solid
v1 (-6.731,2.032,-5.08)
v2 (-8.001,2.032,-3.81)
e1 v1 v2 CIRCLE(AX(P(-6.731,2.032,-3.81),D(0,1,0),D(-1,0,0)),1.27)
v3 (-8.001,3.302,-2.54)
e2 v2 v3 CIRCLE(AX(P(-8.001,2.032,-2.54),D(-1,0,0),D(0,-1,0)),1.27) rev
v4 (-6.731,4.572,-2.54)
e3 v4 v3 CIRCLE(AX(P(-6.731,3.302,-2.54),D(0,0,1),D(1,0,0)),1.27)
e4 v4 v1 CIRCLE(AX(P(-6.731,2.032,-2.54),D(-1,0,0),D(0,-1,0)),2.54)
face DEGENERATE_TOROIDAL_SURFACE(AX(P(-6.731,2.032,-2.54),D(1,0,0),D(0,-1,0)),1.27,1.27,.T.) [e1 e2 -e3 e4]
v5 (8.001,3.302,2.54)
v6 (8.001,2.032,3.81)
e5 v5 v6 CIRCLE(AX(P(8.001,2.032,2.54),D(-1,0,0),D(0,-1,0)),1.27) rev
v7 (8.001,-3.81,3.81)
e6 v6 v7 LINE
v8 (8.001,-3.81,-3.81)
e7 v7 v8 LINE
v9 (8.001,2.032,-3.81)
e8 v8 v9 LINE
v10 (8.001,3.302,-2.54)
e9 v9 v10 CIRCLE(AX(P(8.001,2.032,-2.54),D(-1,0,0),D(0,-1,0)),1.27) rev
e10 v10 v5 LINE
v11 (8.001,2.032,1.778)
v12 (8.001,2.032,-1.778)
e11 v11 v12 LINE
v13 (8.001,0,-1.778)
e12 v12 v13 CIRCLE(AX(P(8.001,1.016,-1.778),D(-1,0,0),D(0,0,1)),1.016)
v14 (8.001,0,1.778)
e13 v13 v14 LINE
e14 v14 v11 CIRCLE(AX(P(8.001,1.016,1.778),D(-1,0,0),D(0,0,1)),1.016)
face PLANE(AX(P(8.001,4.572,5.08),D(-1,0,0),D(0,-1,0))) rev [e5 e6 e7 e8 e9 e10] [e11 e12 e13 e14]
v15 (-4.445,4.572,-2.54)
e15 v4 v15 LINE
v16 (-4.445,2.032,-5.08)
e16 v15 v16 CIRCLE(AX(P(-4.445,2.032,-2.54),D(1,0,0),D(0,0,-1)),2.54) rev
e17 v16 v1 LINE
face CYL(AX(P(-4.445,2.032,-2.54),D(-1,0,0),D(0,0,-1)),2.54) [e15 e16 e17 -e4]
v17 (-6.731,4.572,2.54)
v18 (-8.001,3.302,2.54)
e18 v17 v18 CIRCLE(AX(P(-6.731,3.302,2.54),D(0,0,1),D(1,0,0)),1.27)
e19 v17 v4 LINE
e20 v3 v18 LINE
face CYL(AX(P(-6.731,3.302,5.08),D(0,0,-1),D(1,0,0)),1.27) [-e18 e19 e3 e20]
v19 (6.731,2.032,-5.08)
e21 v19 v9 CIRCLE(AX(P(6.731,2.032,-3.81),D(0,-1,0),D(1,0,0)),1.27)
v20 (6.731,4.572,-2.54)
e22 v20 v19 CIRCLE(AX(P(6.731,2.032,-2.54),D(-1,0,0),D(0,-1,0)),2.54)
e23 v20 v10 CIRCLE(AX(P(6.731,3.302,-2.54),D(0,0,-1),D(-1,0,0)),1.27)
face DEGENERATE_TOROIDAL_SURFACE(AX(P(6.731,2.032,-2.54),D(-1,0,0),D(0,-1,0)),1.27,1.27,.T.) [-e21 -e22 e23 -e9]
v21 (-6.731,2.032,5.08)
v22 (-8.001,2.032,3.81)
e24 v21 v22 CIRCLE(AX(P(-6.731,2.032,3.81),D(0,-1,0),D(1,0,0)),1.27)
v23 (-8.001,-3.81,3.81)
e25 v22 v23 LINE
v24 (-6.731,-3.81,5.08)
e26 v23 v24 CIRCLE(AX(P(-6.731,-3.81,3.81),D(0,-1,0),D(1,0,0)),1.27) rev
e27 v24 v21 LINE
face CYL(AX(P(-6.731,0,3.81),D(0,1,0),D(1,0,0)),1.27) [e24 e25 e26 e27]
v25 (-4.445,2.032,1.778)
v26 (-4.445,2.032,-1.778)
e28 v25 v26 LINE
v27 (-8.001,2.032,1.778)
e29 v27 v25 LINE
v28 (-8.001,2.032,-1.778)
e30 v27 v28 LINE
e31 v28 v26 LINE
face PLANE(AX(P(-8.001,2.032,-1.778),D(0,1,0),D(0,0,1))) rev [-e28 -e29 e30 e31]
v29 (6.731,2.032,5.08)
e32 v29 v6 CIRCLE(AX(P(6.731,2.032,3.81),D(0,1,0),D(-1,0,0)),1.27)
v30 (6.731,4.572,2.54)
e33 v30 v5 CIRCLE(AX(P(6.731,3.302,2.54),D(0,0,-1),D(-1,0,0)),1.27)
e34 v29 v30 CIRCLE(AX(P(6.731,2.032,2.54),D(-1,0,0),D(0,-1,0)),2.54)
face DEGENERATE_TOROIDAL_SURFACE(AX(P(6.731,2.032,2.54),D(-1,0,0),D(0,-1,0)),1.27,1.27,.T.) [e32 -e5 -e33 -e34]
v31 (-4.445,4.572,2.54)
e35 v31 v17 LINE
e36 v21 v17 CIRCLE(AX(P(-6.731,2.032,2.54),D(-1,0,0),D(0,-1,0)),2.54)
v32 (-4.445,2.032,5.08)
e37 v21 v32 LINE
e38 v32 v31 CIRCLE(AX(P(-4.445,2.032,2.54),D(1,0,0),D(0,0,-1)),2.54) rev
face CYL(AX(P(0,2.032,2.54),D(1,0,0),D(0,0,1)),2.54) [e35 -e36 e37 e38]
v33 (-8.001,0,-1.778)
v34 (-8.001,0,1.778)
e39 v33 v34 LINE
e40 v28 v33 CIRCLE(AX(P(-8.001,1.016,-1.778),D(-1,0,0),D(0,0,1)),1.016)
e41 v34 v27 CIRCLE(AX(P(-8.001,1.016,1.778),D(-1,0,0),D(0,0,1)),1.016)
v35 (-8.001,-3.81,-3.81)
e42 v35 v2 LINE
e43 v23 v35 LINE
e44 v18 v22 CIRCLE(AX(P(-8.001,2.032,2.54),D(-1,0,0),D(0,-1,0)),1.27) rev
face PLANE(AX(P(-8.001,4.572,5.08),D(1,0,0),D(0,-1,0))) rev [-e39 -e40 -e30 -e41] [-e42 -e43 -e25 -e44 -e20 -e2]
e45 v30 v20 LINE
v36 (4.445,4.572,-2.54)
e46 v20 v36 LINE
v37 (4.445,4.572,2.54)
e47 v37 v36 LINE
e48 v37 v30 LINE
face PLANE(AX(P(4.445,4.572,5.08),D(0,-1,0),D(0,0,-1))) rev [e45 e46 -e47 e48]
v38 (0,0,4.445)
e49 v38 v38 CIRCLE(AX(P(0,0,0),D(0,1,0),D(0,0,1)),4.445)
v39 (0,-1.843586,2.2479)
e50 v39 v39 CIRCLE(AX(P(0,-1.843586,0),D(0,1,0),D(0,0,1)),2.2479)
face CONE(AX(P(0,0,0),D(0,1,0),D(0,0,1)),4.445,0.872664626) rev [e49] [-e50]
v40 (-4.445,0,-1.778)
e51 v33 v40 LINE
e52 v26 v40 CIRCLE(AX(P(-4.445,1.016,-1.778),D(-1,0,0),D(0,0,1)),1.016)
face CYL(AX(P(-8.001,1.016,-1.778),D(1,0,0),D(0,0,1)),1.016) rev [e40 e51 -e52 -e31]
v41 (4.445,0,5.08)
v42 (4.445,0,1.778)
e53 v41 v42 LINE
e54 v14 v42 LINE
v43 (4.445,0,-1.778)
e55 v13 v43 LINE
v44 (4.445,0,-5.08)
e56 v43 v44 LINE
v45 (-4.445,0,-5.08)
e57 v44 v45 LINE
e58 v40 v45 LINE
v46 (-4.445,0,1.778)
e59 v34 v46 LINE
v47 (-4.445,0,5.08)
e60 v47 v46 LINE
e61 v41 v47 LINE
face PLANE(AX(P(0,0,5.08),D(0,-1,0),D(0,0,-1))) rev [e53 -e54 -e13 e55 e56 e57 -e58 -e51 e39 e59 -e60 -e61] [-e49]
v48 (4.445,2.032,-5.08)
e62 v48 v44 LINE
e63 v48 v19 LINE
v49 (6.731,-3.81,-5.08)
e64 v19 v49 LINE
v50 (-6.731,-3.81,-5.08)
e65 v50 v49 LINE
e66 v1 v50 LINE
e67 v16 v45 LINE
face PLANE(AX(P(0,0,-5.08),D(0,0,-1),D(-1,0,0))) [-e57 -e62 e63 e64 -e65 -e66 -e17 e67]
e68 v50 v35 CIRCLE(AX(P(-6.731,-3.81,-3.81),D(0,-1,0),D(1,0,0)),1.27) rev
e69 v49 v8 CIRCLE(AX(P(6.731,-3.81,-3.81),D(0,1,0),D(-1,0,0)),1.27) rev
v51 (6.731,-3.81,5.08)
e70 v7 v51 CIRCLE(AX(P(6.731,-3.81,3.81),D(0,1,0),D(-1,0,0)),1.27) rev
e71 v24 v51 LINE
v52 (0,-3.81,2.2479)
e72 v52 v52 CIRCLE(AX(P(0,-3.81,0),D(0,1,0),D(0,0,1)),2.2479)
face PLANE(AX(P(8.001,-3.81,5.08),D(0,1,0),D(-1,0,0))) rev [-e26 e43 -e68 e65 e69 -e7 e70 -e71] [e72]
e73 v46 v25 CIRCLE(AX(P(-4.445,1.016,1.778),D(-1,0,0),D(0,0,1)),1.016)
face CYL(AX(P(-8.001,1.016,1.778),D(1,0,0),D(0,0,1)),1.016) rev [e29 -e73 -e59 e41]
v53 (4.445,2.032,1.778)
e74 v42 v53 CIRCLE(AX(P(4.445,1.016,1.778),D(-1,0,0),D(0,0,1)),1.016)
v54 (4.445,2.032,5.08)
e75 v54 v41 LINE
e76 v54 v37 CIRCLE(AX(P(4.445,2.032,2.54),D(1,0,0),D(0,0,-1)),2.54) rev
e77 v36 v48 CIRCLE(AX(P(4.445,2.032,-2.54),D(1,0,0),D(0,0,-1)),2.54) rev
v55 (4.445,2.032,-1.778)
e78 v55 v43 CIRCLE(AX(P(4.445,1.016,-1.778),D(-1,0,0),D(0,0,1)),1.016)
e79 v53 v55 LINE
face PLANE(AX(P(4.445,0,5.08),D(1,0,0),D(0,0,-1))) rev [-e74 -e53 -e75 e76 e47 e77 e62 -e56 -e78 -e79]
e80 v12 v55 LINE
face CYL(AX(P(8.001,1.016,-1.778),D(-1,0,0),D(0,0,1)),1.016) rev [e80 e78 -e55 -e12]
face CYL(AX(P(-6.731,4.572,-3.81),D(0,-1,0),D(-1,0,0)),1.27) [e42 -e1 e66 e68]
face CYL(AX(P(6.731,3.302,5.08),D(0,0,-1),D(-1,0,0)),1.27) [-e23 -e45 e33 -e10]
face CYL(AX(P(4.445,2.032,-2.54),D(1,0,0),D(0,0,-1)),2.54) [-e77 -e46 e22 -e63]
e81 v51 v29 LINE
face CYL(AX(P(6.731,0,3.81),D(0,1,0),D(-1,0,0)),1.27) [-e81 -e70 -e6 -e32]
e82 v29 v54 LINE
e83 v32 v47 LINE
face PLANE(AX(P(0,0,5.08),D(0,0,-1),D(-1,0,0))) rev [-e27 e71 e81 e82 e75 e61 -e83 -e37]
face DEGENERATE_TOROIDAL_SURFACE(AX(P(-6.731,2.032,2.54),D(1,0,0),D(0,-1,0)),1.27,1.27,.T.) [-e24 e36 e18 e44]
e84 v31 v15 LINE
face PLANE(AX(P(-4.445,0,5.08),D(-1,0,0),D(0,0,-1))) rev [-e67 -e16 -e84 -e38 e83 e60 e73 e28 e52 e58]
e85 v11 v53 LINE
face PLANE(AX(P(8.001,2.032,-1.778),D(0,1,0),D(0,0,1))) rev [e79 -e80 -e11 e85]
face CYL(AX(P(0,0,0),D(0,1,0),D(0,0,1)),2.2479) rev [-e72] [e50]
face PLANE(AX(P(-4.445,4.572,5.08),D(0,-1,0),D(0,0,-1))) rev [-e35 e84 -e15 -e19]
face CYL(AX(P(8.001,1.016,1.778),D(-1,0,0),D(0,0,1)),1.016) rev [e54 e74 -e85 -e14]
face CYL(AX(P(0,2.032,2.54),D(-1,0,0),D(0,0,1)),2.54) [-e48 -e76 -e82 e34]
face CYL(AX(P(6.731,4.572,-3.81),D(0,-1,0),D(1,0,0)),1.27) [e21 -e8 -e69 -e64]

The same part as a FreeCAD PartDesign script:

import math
import FreeCAD as App
import Part
import Sketcher

V = App.Vector
Q = App.Units.Quantity


def edges_at(feature, points):
    """Names of the edges that pass closest to the given points."""
    edges = feature.Shape.Edges
    near = lambda p: min(range(len(edges)), key=lambda i: edges[i].distToShape(Part.Vertex(*p))[0])
    return sorted({f"Edge{near(p) + 1}" for p in points})

doc = App.newDocument("Part")
params = doc.addObject("Spreadsheet::Sheet", "Params")
for row, (alias, value) in enumerate([
    ("sketch1_width", "0.14 in"),
    ("sketch1_height", "0.15 in"),
    ("sketch1_height2", "0.33 in"),
    ("sketch1_width2", "0.175 in"),
    ("pad1_length", "0.4 in"),
    ("sketch2_diameter", "0.177 in"),
    ("hole_diameter", "0.177 in"),
    ("hole_csink_diameter", "0.35 in"),
    ("sketch3_radius", "0.04 in"),
    ("sketch3_height", "0.14 in"),
    ("fillet_radius", "0.1 in"),
    ("fillet2_radius", "0.05 in"),
], start=1):
    params.set(f"A{row}", alias)
    params.set(f"B{row}", "=" + value)
    params.setAlias(f"B{row}", alias)

body = doc.addObject("PartDesign::Body", "Body")

sketch1 = doc.addObject("Sketcher::SketchObject", "Sketch")
body.addObject(sketch1)
sketch1.AttachmentSupport = (doc.XY_Plane, [""])
sketch1.MapMode = "FlatFace"
sketch1.addGeometry(Part.LineSegment(V(4.445, 0, 0), V(0, 0, 0)), False)
sketch1.addGeometry(Part.LineSegment(V(0, 0, 0), V(0, -3.81, 0)), False)
sketch1.addGeometry(Part.LineSegment(V(0, -3.81, 0), V(8.001, -3.81, 0)), False)
sketch1.addGeometry(Part.LineSegment(V(8.001, -3.81, 0), V(8.001, 4.572, 0)), False)
sketch1.addGeometry(Part.LineSegment(V(8.001, 4.572, 0), V(4.445, 4.572, 0)), False)
sketch1.addGeometry(Part.LineSegment(V(4.445, 4.572, 0), V(4.445, 0, 0)), False)
sketch1.addConstraint(Sketcher.Constraint("Coincident", 0, 2, 1, 1))
sketch1.addConstraint(Sketcher.Constraint("Coincident", 1, 2, 2, 1))
sketch1.addConstraint(Sketcher.Constraint("Coincident", 2, 2, 3, 1))
sketch1.addConstraint(Sketcher.Constraint("Coincident", 3, 2, 4, 1))
sketch1.addConstraint(Sketcher.Constraint("Coincident", 4, 2, 5, 1))
sketch1.addConstraint(Sketcher.Constraint("Coincident", 5, 2, 0, 1))
sketch1.addConstraint(Sketcher.Constraint("Horizontal", 0))
sketch1.addConstraint(Sketcher.Constraint("Vertical", 1))
sketch1.addConstraint(Sketcher.Constraint("Horizontal", 2))
sketch1.addConstraint(Sketcher.Constraint("Vertical", 3))
sketch1.addConstraint(Sketcher.Constraint("Horizontal", 4))
sketch1.addConstraint(Sketcher.Constraint("Vertical", 5))
sketch1.addConstraint(Sketcher.Constraint("Coincident", 0, 2, -1, 1))
sketch1.addConstraint(Sketcher.Constraint("DistanceX", 4, 2, 4, 1, Q("0.14 in")))
sketch1.addConstraint(Sketcher.Constraint("DistanceY", 1, 2, 1, 1, Q("0.15 in")))
sketch1.addConstraint(Sketcher.Constraint("DistanceY", 3, 1, 3, 2, Q("0.33 in")))
sketch1.addConstraint(Sketcher.Constraint("DistanceX", 0, 2, 0, 1, Q("0.175 in")))
sketch1.setExpression("Constraints[13]", "Params.sketch1_width")
sketch1.setExpression("Constraints[14]", "Params.sketch1_height")
sketch1.setExpression("Constraints[15]", "Params.sketch1_height2")
sketch1.setExpression("Constraints[16]", "Params.sketch1_width2")
pad1 = doc.addObject("PartDesign::Pad", "Pad")
body.addObject(pad1)
pad1.Profile = sketch1
pad1.setExpression("Length", "Params.pad1_length")
pad1.Midplane = True

sketch2 = doc.addObject("Sketcher::SketchObject", "Sketch001")
body.addObject(sketch2)
sketch2.AttachmentSupport = (doc.XZ_Plane, [""])
sketch2.MapMode = "FlatFace"
sketch2.addGeometry(Part.Circle(V(0, 0, 0), V(0, 0, 1), 2.2479), False)
sketch2.addConstraint(Sketcher.Constraint("Coincident", 0, 3, -1, 1))
sketch2.addConstraint(Sketcher.Constraint("Diameter", 0, Q("0.177 in")))
sketch2.setExpression("Constraints[1]", "Params.sketch2_diameter")
doc.recompute()
hole = doc.addObject("PartDesign::Hole", "Hole")
body.addObject(hole)
hole.Profile = sketch2
hole.ThreadType = "None"
hole.setExpression("Diameter", "Params.hole_diameter")
hole.DepthType = "ThroughAll"
hole.HoleCutType = "Countersink"
hole.setExpression("HoleCutDiameter", "Params.hole_csink_diameter")
hole.HoleCutCountersinkAngle = 100
hole.Reversed = True

sketch3 = doc.addObject("Sketcher::SketchObject", "Sketch002")
body.addObject(sketch3)
sketch3.AttachmentSupport = (doc.YZ_Plane, [""])
sketch3.MapMode = "FlatFace"
sketch3.AttachmentOffset = App.Placement(V(0, 0, 0.175 * 25.4), App.Rotation())
sketch3.addGeometry(Part.LineSegment(V(2.032, 1.778, 0), V(2.032, -1.778, 0)), False)
sketch3.addGeometry(Part.ArcOfCircle(Part.Circle(V(1.016, -1.778, 0), V(0, 0, 1), 1.016), math.radians(180), math.radians(360)), False)
sketch3.addGeometry(Part.LineSegment(V(0, -1.778, 0), V(0, 1.778, 0)), False)
sketch3.addGeometry(Part.ArcOfCircle(Part.Circle(V(1.016, 1.778, 0), V(0, 0, 1), 1.016), math.radians(0), math.radians(180)), False)
sketch3.addConstraint(Sketcher.Constraint("Tangent", 0, 2, 1, 2))
sketch3.addConstraint(Sketcher.Constraint("Tangent", 1, 1, 2, 1))
sketch3.addConstraint(Sketcher.Constraint("Tangent", 2, 2, 3, 2))
sketch3.addConstraint(Sketcher.Constraint("Tangent", 3, 1, 0, 1))
sketch3.addConstraint(Sketcher.Constraint("Vertical", 0))
sketch3.addConstraint(Sketcher.Constraint("Vertical", 2))
sketch3.addConstraint(Sketcher.Constraint("Symmetric", 1, 1, 2, 2, -1, 1))
sketch3.addConstraint(Sketcher.Constraint("Radius", 1, Q("0.04 in")))
sketch3.addConstraint(Sketcher.Constraint("DistanceY", 0, 2, 0, 1, Q("0.14 in")))
sketch3.setExpression("Constraints[7]", "Params.sketch3_radius")
sketch3.setExpression("Constraints[8]", "Params.sketch3_height")
pocket1 = doc.addObject("PartDesign::Pocket", "Pocket")
body.addObject(pocket1)
pocket1.Profile = sketch3
pocket1.Type = "ThroughAll"
pocket1.Reversed = True
doc.recompute()

fillet = doc.addObject("PartDesign::Fillet", "Fillet")
body.addObject(fillet)
fillet.Base = (pocket1, edges_at(pocket1, [(6.223, 4.572, 5.08), (6.223, 4.572, -5.08)]))
fillet.setExpression("Radius", "Params.fillet_radius")
doc.recompute()

fillet2 = doc.addObject("PartDesign::Fillet", "Fillet001")
body.addObject(fillet2)
fillet2.Base = (fillet, edges_at(fillet, [
    (8.001, -0.889, 5.08),
    (8.001, 4.572, 0),
    (8.001, 3.828, 4.336),
    (8.001, 3.828, -4.336),
    (8.001, -0.889, -5.08),
]))
fillet2.setExpression("Radius", "Params.fillet2_radius")
body2 = doc.addObject("PartDesign::Body", "Body001")
doc.recompute()

body2.BaseFeature = body
doc.recompute()

mirroring = doc.addObject("Part::Mirroring", "Mirroring")
mirroring.Source = body
mirroring.Base = V(0, 0, 0)
mirroring.Normal = V(1, 0, 0)
body3 = doc.addObject("PartDesign::Body", "Body002")
body3.BaseFeature = mirroring
boolean = doc.addObject("PartDesign::Boolean", "Boolean")
body2.addObject(boolean)
boolean.Type = "Fuse"
boolean.addObjects([body3])
doc.recompute()
mirroring.Visibility = False

doc.recompute()
